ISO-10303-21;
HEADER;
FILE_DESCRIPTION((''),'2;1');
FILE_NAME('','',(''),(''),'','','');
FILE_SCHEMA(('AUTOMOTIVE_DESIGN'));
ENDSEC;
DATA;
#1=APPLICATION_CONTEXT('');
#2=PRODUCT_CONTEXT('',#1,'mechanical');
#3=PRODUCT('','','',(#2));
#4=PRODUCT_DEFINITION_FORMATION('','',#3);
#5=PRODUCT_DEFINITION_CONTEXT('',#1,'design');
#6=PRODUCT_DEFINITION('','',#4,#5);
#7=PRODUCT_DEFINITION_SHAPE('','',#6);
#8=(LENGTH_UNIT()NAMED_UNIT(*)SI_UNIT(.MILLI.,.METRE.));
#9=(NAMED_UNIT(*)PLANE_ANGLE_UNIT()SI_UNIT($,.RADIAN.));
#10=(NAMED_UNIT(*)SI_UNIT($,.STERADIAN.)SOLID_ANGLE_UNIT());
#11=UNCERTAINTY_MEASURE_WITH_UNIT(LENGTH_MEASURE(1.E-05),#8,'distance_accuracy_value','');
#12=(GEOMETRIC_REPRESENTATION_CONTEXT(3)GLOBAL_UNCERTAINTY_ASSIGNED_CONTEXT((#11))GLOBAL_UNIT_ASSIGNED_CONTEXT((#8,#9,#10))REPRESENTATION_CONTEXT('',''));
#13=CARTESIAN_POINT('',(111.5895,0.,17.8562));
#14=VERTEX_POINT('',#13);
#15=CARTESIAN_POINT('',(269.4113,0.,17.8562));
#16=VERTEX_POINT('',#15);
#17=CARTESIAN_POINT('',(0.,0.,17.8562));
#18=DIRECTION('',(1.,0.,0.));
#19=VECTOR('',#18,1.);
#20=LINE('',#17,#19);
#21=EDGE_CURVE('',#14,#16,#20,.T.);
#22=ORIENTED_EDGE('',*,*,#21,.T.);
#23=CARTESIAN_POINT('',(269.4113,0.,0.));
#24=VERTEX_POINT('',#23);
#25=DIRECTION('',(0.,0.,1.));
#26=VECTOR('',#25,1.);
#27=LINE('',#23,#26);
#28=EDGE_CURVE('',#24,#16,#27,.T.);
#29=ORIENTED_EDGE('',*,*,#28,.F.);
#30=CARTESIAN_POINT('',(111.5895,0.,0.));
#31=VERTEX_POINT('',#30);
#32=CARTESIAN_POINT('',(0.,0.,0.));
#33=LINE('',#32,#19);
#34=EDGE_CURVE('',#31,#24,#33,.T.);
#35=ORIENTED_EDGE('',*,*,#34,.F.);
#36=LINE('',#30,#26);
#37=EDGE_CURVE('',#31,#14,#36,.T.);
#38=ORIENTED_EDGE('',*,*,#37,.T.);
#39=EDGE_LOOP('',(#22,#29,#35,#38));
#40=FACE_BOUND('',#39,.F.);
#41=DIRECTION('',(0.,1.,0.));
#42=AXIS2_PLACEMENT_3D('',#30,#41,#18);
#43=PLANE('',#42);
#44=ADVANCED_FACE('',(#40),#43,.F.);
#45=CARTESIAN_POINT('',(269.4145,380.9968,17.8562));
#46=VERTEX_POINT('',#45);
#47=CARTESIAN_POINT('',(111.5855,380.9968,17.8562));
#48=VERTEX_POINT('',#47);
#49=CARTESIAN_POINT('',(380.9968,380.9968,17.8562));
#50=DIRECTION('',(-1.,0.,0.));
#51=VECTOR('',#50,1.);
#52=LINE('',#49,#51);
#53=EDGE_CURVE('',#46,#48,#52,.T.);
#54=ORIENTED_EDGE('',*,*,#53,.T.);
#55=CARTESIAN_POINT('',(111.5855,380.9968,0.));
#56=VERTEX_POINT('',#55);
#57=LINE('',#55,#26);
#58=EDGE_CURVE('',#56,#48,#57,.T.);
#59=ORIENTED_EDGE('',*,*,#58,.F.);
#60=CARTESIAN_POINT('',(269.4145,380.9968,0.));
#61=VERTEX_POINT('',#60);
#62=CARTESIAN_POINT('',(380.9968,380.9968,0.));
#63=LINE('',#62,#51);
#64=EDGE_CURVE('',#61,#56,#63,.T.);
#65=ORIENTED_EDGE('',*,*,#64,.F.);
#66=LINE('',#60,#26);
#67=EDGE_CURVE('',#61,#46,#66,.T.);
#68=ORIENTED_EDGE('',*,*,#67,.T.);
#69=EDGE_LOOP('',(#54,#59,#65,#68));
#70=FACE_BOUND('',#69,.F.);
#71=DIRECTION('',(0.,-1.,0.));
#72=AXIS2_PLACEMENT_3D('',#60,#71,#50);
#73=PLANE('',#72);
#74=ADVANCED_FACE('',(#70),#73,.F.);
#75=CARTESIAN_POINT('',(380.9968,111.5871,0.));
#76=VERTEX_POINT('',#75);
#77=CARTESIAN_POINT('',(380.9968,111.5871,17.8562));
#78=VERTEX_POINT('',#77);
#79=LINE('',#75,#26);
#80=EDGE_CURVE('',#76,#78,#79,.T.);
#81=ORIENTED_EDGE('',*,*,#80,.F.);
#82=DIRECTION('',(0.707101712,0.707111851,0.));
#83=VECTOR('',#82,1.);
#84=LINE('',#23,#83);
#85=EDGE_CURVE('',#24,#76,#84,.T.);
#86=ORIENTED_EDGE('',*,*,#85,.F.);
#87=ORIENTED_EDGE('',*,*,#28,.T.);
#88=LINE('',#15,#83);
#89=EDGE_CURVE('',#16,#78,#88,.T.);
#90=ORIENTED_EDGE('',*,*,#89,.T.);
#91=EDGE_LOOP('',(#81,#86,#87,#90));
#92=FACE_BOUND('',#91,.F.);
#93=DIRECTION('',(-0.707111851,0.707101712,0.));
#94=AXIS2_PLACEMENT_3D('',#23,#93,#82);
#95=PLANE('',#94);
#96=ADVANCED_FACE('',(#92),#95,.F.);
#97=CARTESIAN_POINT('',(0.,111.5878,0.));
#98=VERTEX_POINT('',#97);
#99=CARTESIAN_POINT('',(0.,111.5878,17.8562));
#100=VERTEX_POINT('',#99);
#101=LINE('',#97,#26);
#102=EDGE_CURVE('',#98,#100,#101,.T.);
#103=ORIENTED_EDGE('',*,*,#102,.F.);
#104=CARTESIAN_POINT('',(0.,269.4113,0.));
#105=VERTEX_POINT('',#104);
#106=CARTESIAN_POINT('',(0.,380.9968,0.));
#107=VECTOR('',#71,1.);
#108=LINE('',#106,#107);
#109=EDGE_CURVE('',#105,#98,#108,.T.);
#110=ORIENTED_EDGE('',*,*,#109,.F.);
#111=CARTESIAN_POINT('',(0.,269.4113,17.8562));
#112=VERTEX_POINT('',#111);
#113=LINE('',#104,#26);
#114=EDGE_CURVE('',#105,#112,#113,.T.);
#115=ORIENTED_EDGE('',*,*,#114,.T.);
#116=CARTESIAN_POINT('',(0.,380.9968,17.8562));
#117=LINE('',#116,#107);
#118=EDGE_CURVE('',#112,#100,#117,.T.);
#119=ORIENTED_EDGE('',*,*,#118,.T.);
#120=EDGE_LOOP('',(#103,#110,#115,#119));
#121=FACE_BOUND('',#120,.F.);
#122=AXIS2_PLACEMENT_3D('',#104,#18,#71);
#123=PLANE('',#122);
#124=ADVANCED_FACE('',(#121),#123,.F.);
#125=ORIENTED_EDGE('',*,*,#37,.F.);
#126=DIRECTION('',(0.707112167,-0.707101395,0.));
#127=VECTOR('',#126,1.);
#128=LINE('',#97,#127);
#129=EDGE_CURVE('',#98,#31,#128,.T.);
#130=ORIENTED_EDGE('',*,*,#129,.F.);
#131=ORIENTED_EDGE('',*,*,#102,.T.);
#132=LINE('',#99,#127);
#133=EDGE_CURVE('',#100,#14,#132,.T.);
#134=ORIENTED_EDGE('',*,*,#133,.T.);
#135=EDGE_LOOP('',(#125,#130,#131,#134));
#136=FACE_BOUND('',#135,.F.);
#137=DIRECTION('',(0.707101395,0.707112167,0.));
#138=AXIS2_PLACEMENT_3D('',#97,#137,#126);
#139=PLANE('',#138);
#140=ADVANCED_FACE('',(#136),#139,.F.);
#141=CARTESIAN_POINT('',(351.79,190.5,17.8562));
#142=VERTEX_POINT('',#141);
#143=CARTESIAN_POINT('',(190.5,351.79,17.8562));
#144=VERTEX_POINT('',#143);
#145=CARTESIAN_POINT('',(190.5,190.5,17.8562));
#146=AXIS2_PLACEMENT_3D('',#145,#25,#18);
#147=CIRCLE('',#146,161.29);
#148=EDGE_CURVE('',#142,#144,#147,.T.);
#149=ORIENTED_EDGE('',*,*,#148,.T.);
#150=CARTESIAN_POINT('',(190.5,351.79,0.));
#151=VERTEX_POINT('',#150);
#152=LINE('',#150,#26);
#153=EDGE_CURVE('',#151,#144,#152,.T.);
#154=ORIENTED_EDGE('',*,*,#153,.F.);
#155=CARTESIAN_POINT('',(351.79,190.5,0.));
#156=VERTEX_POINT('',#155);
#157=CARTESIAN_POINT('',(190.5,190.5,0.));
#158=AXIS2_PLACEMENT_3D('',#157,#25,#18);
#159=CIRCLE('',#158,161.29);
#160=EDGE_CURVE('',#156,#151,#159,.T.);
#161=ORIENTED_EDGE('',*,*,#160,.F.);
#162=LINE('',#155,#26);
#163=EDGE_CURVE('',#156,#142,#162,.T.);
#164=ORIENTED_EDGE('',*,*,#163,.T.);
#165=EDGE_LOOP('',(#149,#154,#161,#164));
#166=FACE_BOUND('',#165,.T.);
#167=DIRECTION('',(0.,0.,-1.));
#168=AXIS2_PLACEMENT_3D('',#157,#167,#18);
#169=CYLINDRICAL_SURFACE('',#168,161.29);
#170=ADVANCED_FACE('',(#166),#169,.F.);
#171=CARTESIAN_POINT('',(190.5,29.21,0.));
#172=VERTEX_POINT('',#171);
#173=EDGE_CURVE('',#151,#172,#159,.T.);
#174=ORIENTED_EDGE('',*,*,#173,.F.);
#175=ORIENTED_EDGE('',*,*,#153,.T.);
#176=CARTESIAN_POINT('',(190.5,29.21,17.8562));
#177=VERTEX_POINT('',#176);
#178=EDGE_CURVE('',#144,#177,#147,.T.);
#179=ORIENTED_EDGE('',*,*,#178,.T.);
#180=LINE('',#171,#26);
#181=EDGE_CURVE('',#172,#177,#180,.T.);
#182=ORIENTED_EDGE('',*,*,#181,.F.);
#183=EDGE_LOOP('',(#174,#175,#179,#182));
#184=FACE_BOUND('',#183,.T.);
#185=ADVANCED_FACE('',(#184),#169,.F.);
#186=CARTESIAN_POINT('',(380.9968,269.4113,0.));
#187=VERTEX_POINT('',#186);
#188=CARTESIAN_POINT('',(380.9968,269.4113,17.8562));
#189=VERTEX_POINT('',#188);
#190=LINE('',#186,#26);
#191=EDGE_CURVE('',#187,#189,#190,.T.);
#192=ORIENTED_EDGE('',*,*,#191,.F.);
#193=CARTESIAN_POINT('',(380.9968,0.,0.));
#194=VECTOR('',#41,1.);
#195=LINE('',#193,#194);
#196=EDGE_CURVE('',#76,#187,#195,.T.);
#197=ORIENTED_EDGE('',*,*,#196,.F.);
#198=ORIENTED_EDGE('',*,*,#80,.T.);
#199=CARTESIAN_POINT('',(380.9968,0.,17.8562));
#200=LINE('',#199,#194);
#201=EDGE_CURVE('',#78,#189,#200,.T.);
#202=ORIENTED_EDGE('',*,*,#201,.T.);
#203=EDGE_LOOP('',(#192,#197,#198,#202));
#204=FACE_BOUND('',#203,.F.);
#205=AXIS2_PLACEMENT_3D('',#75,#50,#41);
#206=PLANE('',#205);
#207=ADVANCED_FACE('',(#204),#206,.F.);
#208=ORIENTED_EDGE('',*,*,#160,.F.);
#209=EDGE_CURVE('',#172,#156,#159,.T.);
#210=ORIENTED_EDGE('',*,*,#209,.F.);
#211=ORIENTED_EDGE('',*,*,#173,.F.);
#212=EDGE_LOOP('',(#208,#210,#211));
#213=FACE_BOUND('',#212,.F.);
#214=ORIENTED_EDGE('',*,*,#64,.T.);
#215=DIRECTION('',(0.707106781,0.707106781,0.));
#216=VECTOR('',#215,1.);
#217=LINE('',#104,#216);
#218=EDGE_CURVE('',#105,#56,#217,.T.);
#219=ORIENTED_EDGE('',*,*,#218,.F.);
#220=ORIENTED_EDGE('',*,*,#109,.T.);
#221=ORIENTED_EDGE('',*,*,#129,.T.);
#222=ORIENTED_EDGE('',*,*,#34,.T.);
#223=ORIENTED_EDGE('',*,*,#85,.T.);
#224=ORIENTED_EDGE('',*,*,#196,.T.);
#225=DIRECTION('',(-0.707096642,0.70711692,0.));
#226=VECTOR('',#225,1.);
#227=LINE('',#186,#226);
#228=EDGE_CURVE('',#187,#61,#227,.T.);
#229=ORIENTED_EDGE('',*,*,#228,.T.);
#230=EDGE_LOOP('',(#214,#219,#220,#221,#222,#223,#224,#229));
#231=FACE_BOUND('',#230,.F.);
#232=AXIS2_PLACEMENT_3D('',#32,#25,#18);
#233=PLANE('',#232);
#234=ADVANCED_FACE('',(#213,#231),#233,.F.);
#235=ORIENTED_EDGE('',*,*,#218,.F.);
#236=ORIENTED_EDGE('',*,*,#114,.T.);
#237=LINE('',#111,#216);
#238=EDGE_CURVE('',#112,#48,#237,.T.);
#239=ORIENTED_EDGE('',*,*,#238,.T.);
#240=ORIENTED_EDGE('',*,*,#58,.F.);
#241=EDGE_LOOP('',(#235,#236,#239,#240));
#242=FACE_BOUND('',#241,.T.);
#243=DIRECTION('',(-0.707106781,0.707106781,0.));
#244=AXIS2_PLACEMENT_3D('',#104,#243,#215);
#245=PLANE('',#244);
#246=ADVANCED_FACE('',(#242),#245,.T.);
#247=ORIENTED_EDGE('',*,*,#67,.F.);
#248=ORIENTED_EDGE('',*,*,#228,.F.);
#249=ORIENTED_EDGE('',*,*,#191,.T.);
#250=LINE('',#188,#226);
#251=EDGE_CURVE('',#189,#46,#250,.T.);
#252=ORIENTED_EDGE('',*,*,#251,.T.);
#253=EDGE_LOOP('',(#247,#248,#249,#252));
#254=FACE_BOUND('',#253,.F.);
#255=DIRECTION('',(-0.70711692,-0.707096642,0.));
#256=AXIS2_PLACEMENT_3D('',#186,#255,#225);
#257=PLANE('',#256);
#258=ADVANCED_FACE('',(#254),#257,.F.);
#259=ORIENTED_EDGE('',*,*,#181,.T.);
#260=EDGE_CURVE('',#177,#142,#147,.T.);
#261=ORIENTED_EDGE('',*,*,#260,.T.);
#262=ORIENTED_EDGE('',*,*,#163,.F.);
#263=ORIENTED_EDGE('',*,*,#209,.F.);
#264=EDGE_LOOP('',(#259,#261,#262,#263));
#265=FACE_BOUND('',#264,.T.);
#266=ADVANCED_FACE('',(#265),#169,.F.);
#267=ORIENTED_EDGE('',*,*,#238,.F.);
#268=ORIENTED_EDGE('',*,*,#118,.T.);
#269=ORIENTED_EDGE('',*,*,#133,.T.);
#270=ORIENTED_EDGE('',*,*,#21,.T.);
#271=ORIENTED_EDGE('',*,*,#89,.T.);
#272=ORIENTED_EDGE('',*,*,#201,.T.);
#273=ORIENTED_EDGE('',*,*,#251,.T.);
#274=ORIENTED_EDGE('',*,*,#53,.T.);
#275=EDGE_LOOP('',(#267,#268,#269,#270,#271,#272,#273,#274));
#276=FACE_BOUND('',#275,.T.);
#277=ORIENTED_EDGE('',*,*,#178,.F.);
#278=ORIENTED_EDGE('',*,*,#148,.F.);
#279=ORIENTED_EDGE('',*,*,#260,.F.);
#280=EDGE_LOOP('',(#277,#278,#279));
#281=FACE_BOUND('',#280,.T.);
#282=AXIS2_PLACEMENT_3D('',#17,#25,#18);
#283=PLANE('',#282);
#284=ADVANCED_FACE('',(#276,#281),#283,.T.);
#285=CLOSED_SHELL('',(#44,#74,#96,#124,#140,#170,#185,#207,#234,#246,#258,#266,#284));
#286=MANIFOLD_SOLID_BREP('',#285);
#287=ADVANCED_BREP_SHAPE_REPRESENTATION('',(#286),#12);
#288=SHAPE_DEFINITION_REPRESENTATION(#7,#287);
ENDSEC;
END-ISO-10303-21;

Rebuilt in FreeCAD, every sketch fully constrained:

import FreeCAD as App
import Part
import Sketcher

V = App.Vector
Q = App.Units.Quantity

doc = App.newDocument("Part")
body = doc.addObject("PartDesign::Body", "Body")

sketch1 = doc.addObject("Sketcher::SketchObject", "Sketch")
body.addObject(sketch1)
sketch1.AttachmentSupport = (doc.XY_Plane, [""])
sketch1.MapMode = "FlatFace"
sketch1.addGeometry([
    Part.LineSegment(V(111.5855, 380.9968, 0), V(0, 269.4113, 0)),
    Part.LineSegment(V(0, 269.4113, 0), V(0, 111.5878, 0)),
    Part.LineSegment(V(0, 111.5878, 0), V(111.5895, 0, 0)),
    Part.LineSegment(V(111.5895, 0, 0), V(269.4113, 0, 0)),
    Part.LineSegment(V(269.4113, 0, 0), V(380.9968, 111.5871, 0)),
    Part.LineSegment(V(380.9968, 111.5871, 0), V(380.9968, 269.4113, 0)),
    Part.LineSegment(V(380.9968, 269.4113, 0), V(269.4145, 380.9968, 0)),
    Part.LineSegment(V(269.4145, 380.9968, 0), V(111.5855, 380.9968, 0)),
    Part.Circle(V(190.5, 190.5, 0), V(0, 0, 1), 161.29),
], False)
sketch1.addConstraint([
    Sketcher.Constraint("Coincident", 0, 2, 1, 1),
    Sketcher.Constraint("Coincident", 1, 2, 2, 1),
    Sketcher.Constraint("Coincident", 2, 2, 3, 1),
    Sketcher.Constraint("Coincident", 3, 2, 4, 1),
    Sketcher.Constraint("Coincident", 4, 2, 5, 1),
    Sketcher.Constraint("Coincident", 5, 2, 6, 1),
    Sketcher.Constraint("Coincident", 6, 2, 7, 1),
    Sketcher.Constraint("Coincident", 7, 2, 0, 1),
    Sketcher.Constraint("Vertical", 1),
    Sketcher.Constraint("Horizontal", 3),
    Sketcher.Constraint("Vertical", 5),
    Sketcher.Constraint("Horizontal", 7),
    Sketcher.Constraint("PointOnObject", 0, 2, -2),
    Sketcher.Constraint("PointOnObject", 2, 2, -1),
    Sketcher.Constraint("Diameter", 8, Q("12.7 in")),
    Sketcher.Constraint("DistanceX", -1, 1, 8, 3, Q("7.5 in")),
    Sketcher.Constraint("DistanceY", -1, 1, 8, 3, Q("7.5 in")),
    Sketcher.Constraint("Distance", 2, Q("6.213 in")),
    Sketcher.Constraint("DistanceX", 3, 1, 3, 2, 157.8218),
    Sketcher.Constraint("DistanceY", 1, 2, 1, 1, 157.8235),
    Sketcher.Constraint("DistanceY", -1, 1, 1, 2, 111.5878),
    Sketcher.Constraint("DistanceX", -1, 1, 4, 2, 380.9968),
    Sketcher.Constraint("DistanceY", -1, 1, 6, 2, 380.9968),
    Sketcher.Constraint("DistanceX", 6, 2, 5, 2, Q("4.393 in")),
    Sketcher.Constraint("DistanceX", 7, 2, 7, 1, 157.829),
    Sketcher.Constraint("DistanceY", 5, 1, 5, 2, 157.8242),
    Sketcher.Constraint("DistanceY", -1, 1, 4, 2, Q("4.3932 in")),
])
pad1 = doc.addObject("PartDesign::Pad", "Pad")
body.addObject(pad1)
pad1.Profile = sketch1
pad1.Length = Q("0.703 in")

doc.recompute()
